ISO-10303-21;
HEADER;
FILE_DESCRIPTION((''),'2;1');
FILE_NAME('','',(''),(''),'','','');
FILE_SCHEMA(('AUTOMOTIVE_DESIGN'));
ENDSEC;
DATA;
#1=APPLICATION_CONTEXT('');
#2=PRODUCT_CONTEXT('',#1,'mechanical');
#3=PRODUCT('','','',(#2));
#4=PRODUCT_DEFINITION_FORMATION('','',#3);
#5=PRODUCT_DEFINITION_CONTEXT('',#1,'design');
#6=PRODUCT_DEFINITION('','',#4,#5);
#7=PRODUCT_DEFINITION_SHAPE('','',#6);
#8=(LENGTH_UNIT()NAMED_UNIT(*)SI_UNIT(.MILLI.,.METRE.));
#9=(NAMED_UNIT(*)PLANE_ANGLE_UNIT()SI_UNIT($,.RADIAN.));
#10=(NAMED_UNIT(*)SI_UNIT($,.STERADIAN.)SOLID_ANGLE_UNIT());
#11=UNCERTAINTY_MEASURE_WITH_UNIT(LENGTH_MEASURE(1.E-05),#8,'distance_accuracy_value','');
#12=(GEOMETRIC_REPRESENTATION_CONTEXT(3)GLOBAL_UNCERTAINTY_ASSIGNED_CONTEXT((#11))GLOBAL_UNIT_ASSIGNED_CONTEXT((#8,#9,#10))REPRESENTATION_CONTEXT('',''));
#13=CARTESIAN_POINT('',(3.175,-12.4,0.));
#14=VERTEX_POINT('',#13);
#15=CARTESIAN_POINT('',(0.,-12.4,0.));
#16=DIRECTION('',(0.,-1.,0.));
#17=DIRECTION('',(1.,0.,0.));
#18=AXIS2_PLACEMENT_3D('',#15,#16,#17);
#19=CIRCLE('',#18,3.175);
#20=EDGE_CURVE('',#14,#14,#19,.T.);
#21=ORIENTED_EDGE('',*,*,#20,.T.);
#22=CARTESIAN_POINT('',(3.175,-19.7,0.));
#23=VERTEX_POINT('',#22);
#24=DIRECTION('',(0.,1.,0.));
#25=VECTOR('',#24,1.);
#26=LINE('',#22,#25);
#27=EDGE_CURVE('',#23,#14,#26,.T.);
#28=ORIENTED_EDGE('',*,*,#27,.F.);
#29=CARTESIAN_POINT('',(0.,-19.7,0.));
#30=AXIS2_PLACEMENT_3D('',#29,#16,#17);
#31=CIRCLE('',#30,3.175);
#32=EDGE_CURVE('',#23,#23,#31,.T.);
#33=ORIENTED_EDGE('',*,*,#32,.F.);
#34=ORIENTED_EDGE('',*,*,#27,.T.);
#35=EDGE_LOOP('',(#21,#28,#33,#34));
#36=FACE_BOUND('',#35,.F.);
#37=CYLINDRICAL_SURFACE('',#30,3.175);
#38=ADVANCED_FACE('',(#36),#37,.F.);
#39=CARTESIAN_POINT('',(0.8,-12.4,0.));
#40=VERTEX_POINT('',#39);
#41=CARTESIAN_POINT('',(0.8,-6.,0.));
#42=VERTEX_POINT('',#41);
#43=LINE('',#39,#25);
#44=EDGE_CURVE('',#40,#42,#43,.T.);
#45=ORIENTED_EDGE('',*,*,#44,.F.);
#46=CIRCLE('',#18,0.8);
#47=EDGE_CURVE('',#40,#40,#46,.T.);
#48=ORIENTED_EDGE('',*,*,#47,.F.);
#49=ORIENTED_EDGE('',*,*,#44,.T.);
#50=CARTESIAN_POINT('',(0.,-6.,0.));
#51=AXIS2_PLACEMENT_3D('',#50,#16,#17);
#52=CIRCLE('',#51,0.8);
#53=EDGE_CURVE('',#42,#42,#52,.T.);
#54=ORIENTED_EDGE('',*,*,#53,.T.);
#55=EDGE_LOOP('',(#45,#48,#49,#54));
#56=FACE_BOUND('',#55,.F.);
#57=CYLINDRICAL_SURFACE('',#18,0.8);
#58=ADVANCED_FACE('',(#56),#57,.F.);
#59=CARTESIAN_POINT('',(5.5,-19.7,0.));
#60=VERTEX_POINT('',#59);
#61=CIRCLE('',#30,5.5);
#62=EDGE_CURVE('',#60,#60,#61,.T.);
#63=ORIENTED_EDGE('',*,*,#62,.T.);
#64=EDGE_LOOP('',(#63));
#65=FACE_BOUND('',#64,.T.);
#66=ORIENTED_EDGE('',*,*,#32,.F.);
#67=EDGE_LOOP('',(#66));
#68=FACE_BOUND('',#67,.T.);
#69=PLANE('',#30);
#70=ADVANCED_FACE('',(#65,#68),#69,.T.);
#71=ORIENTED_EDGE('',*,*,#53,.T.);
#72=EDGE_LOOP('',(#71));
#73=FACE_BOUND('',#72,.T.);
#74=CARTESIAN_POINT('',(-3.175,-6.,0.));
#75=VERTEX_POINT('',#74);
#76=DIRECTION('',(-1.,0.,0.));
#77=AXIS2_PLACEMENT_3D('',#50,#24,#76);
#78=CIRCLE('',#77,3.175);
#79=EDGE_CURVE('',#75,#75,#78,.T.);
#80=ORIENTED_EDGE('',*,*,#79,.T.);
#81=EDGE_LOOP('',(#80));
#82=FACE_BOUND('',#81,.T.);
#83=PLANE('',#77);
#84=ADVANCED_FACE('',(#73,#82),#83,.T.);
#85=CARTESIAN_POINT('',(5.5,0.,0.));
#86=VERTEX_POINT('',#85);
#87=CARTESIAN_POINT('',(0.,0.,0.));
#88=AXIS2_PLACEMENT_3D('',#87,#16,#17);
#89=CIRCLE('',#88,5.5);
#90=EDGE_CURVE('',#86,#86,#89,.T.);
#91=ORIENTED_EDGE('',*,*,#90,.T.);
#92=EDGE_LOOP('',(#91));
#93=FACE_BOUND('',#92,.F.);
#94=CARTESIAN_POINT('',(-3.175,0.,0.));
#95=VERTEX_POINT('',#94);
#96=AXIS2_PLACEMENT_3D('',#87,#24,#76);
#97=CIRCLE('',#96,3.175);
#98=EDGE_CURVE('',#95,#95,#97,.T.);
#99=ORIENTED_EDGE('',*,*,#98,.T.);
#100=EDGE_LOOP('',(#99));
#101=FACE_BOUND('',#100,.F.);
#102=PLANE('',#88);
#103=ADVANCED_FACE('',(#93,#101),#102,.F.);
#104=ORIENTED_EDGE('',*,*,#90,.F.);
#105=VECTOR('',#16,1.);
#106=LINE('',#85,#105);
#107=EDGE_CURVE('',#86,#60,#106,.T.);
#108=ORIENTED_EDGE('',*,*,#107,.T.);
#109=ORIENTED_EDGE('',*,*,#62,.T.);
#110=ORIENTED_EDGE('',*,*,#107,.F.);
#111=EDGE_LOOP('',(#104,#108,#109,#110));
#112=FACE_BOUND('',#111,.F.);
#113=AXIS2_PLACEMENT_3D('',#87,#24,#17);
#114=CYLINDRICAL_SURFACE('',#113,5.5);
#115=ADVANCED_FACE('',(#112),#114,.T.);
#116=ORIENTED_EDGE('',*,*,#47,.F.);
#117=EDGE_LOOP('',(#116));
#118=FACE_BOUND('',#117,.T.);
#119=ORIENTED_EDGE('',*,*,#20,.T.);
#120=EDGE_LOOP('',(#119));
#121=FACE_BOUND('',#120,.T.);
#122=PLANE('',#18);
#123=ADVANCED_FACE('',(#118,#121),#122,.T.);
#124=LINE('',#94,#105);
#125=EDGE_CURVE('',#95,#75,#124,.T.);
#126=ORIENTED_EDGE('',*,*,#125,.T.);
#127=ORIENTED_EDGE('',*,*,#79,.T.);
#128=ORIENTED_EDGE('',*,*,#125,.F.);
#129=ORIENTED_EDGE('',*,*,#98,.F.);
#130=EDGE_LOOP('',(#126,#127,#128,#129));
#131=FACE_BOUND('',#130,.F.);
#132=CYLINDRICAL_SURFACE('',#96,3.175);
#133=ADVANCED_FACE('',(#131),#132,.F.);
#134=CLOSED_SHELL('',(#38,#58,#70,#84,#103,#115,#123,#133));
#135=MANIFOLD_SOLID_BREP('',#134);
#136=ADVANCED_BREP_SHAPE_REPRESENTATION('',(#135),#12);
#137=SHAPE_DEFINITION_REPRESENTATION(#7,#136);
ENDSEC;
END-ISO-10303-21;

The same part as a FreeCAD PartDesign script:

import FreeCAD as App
import Part
import Sketcher
from FreeCAD import Vector
Q = App.Units.Quantity

doc = App.newDocument("Part")
params = doc.addObject("Spreadsheet::Sheet", "Params")
for row, (alias, value) in enumerate([
    ("sketch1_diameter", "11 mm"),
    ("pad1_length", "19.7 mm"),
    ("sketch2_diameter", "6.35 mm"),
    ("pocket1_length", "7.3 mm"),
    ("sketch3_diameter", "6.35 mm"),
    ("pocket2_length", "6 mm"),
    ("sketch4_diameter", "1.6 mm"),
], start=1):
    params.set(f"A{row}", alias)
    params.set(f"B{row}", "=" + value)
    params.setAlias(f"B{row}", alias)

body = doc.addObject("PartDesign::Body", "Body")

sketch1 = body.newObject("Sketcher::SketchObject", "Sketch")
sketch1.AttachmentSupport = (doc.getObject("XZ_Plane"), [""])
sketch1.MapMode = "FlatFace"
sketch1.addGeometry(Part.Circle(Vector(0, 0, 0), Vector(0, 0, 1), 6), False)
sketch1.addConstraint([
    Sketcher.Constraint("Coincident", 0, 3, -1, 1),
    Sketcher.Constraint("Diameter", 0, Q("11 mm")),
])
sketch1.setExpression("Constraints[1]", "Params.sketch1_diameter")
pad1 = body.newObject("PartDesign::Pad", "Pad")
pad1.Profile = sketch1
pad1.setExpression("Length", "Params.pad1_length")

sketch2 = body.newObject("Sketcher::SketchObject", "Sketch001")
sketch2.AttachmentSupport = (doc.getObject("XZ_Plane"), [""])
sketch2.MapMode = "FlatFace"
sketch2.AttachmentOffset = App.Placement(Vector(0, 0, 19.7), App.Rotation())
sketch2.addGeometry(Part.Circle(Vector(0, 0, 0), Vector(0, 0, 1), 3.2), False)
sketch2.addConstraint([
    Sketcher.Constraint("Coincident", 0, 3, -1, 1),
    Sketcher.Constraint("Diameter", 0, Q("6.35 mm")),
])
sketch2.setExpression("Constraints[1]", "Params.sketch2_diameter")
pocket1 = body.newObject("PartDesign::Pocket", "Pocket")
pocket1.Profile = sketch2
pocket1.setExpression("Length", "Params.pocket1_length")

sketch3 = body.newObject("Sketcher::SketchObject", "Sketch002")
sketch3.AttachmentSupport = (doc.getObject("XZ_Plane"), [""])
sketch3.MapMode = "FlatFace"
sketch3.addGeometry(Part.Circle(Vector(0, 0, 0), Vector(0, 0, 1), 3.2), False)
sketch3.addConstraint([
    Sketcher.Constraint("Coincident", 0, 3, -1, 1),
    Sketcher.Constraint("Diameter", 0, Q("6.35 mm")),
])
sketch3.setExpression("Constraints[1]", "Params.sketch3_diameter")
pocket2 = body.newObject("PartDesign::Pocket", "Pocket001")
pocket2.Profile = sketch3
pocket2.setExpression("Length", "Params.pocket2_length")
pocket2.Reversed = True

sketch4 = body.newObject("Sketcher::SketchObject", "Sketch003")
sketch4.AttachmentSupport = (doc.getObject("XZ_Plane"), [""])
sketch4.MapMode = "FlatFace"
sketch4.AttachmentOffset = App.Placement(Vector(0, 0, 12.4), App.Rotation())
sketch4.addGeometry(Part.Circle(Vector(0, 0, 0), Vector(0, 0, 1), 0.8), False)
sketch4.addConstraint([
    Sketcher.Constraint("Coincident", 0, 3, -1, 1),
    Sketcher.Constraint("Diameter", 0, Q("1.6 mm")),
])
sketch4.setExpression("Constraints[1]", "Params.sketch4_diameter")
pocket3 = body.newObject("PartDesign::Pocket", "Pocket002")
pocket3.Profile = sketch4
pocket3.Type = "ThroughAll"

doc.recompute()
